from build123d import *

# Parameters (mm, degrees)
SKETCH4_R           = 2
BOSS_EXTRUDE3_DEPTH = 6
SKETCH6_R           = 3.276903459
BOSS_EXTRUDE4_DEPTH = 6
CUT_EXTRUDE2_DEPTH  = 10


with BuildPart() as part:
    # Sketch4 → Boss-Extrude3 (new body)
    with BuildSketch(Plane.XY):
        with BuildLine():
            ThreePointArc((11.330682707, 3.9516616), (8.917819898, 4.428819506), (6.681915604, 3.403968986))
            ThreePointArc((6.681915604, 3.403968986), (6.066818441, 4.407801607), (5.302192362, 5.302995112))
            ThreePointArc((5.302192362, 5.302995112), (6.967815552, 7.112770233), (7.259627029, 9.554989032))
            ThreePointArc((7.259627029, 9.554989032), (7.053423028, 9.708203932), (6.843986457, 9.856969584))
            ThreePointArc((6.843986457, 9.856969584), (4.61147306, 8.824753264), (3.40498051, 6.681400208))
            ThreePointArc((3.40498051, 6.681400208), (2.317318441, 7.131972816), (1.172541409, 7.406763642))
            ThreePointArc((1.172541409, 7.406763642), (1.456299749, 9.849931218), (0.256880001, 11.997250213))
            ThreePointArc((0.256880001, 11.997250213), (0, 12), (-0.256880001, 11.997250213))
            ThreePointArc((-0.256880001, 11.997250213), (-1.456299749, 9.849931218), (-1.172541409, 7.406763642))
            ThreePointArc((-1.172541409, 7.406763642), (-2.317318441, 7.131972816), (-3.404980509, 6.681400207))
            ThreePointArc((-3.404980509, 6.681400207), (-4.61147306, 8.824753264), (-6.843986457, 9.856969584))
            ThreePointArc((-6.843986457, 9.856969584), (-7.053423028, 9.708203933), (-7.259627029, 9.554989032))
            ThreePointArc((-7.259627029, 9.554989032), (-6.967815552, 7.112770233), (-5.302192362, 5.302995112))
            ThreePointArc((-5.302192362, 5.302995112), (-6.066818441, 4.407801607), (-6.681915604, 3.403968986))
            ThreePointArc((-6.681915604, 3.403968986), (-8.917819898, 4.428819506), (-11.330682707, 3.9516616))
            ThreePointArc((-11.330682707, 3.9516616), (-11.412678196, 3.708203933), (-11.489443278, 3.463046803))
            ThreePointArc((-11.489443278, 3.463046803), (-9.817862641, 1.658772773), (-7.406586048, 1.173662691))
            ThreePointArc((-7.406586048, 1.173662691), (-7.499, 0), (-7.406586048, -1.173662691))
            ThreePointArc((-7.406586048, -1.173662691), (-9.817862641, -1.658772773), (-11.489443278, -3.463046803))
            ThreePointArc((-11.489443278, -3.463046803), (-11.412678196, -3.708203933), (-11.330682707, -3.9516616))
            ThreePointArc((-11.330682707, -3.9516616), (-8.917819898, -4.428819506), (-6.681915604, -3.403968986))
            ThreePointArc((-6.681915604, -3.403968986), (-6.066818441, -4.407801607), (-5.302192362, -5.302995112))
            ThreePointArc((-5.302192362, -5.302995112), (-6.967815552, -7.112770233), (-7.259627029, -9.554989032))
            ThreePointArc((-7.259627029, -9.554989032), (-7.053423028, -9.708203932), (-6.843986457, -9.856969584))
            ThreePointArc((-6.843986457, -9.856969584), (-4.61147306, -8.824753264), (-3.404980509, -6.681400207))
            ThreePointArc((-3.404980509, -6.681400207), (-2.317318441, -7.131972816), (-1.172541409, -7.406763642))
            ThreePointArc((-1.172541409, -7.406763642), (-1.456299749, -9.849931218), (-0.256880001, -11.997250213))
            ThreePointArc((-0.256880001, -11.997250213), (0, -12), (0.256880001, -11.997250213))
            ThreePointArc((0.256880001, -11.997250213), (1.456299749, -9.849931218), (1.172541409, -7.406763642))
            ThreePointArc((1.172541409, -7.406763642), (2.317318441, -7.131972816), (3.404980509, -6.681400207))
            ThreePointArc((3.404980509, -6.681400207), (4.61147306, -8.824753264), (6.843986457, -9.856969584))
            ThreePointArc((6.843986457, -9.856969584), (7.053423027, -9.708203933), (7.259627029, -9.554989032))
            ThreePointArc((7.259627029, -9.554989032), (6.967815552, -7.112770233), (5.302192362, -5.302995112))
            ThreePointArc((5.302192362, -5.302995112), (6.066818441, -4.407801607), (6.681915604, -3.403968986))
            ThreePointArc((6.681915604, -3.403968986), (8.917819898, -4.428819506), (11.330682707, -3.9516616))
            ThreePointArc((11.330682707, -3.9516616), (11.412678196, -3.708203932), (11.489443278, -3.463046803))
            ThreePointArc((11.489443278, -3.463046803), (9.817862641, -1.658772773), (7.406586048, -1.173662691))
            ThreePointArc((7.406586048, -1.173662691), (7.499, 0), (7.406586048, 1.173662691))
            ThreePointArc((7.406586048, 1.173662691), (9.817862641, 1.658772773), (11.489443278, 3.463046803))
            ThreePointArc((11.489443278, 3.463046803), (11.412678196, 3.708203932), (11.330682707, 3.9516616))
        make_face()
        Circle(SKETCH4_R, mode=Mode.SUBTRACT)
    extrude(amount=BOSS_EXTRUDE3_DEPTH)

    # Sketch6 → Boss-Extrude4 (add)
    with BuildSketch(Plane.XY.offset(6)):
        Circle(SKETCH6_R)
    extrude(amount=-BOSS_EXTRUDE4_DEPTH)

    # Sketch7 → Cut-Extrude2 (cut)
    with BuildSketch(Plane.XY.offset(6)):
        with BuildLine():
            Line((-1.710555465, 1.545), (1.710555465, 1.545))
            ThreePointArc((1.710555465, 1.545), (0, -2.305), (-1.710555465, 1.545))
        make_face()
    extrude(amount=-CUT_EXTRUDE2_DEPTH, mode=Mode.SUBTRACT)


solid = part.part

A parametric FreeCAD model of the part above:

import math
import FreeCAD as App
import Part
import Sketcher
from FreeCAD import Vector

doc = App.newDocument("Part")
body = doc.addObject("PartDesign::Body", "Body")

# Sketch on XY plane
sketch1 = doc.addObject("Sketcher::SketchObject", "Sketch")
body.addObject(sketch1)
sketch1.AttachmentSupport = (doc.XY_Plane, [""])
sketch1.MapMode = "FlatFace"
sketch1.addGeometry(Part.ArcOfCircle(Part.Circle(Vector(9.4, 0.5, 0), Vector(0, 0, 1), 4), math.radians(61), math.radians(133)), False)
sketch1.addGeometry(Part.ArcOfCircle(Part.Circle(Vector(0, 0, 0), Vector(0, 0, 1), 7.5), math.radians(27), math.radians(45)), False)
sketch1.addGeometry(Part.ArcOfCircle(Part.Circle(Vector(3.3, 8.8, 0), Vector(0, 0, 1), 4), math.radians(-61), math.radians(11)), False)
sketch1.addGeometry(Part.ArcOfCircle(Part.Circle(Vector(0, 0, 0), Vector(0, 0, 1), 12), math.radians(52.77), math.radians(55.23)), False)
sketch1.addGeometry(Part.ArcOfCircle(Part.Circle(Vector(7.3, 5.9, 0), Vector(0, 0, 1), 4), math.radians(97), math.radians(169)), False)
sketch1.addGeometry(Part.ArcOfCircle(Part.Circle(Vector(0, 0, 0), Vector(0, 0, 1), 7.5), math.radians(63), math.radians(81)), False)
sketch1.addGeometry(Part.ArcOfCircle(Part.Circle(Vector(-2.5, 9.1, 0), Vector(0, 0, 1), 4), math.radians(-25), math.radians(47)), False)
sketch1.addGeometry(Part.ArcOfCircle(Part.Circle(Vector(0, 0, 0), Vector(0, 0, 1), 12), math.radians(88.77), math.radians(91.23)), False)
sketch1.addGeometry(Part.ArcOfCircle(Part.Circle(Vector(2.5, 9.1, 0), Vector(0, 0, 1), 4), math.radians(133), math.radians(205)), False)
sketch1.addGeometry(Part.ArcOfCircle(Part.Circle(Vector(0, 0, 0), Vector(0, 0, 1), 7.5), math.radians(99), math.radians(117)), False)
sketch1.addGeometry(Part.ArcOfCircle(Part.Circle(Vector(-7.3, 5.9, 0), Vector(0, 0, 1), 4), math.radians(11), math.radians(83)), False)
sketch1.addGeometry(Part.ArcOfCircle(Part.Circle(Vector(0, 0, 0), Vector(0, 0, 1), 12), math.radians(124.77), math.radians(127.23)), False)
sketch1.addGeometry(Part.ArcOfCircle(Part.Circle(Vector(-3.3, 8.8, 0), Vector(0, 0, 1), 4), math.radians(169), math.radians(241)), False)
sketch1.addGeometry(Part.ArcOfCircle(Part.Circle(Vector(0, 0, 0), Vector(0, 0, 1), 7.5), math.radians(135), math.radians(153)), False)
sketch1.addGeometry(Part.ArcOfCircle(Part.Circle(Vector(-9.4, 0.5, 0), Vector(0, 0, 1), 4), math.radians(47), math.radians(119)), False)
sketch1.addGeometry(Part.ArcOfCircle(Part.Circle(Vector(0, 0, 0), Vector(0, 0, 1), 12), math.radians(160.77), math.radians(163.23)), False)
sketch1.addGeometry(Part.ArcOfCircle(Part.Circle(Vector(-7.9, 5.1, 0), Vector(0, 0, 1), 4), math.radians(-155), math.radians(-83)), False)
sketch1.addGeometry(Part.ArcOfCircle(Part.Circle(Vector(0, 0, 0), Vector(0, 0, 1), 7.5), math.radians(171), math.radians(189)), False)
sketch1.addGeometry(Part.ArcOfCircle(Part.Circle(Vector(-7.9, -5.1, 0), Vector(0, 0, 1), 4), math.radians(83), math.radians(155)), False)
sketch1.addGeometry(Part.ArcOfCircle(Part.Circle(Vector(0, 0, 0), Vector(0, 0, 1), 12), math.radians(-163.23), math.radians(-160.77)), False)
sketch1.addGeometry(Part.ArcOfCircle(Part.Circle(Vector(-9.4, -0.5, 0), Vector(0, 0, 1), 4), math.radians(-119), math.radians(-47)), False)
sketch1.addGeometry(Part.ArcOfCircle(Part.Circle(Vector(0, 0, 0), Vector(0, 0, 1), 7.5), math.radians(-153), math.radians(-135)), False)
sketch1.addGeometry(Part.ArcOfCircle(Part.Circle(Vector(-3.3, -8.8, 0), Vector(0, 0, 1), 4), math.radians(119), math.radians(191)), False)
sketch1.addGeometry(Part.ArcOfCircle(Part.Circle(Vector(0, 0, 0), Vector(0, 0, 1), 12), math.radians(-127.23), math.radians(-124.77)), False)
sketch1.addGeometry(Part.ArcOfCircle(Part.Circle(Vector(-7.3, -5.9, 0), Vector(0, 0, 1), 4), math.radians(-83), math.radians(-11)), False)
sketch1.addGeometry(Part.ArcOfCircle(Part.Circle(Vector(0, 0, 0), Vector(0, 0, 1), 7.5), math.radians(-117), math.radians(-99)), False)
sketch1.addGeometry(Part.ArcOfCircle(Part.Circle(Vector(2.5, -9.1, 0), Vector(0, 0, 1), 4), math.radians(155), math.radians(227)), False)
sketch1.addGeometry(Part.ArcOfCircle(Part.Circle(Vector(0, 0, 0), Vector(0, 0, 1), 12), math.radians(-91.23), math.radians(-88.77)), False)
sketch1.addGeometry(Part.ArcOfCircle(Part.Circle(Vector(-2.5, -9.1, 0), Vector(0, 0, 1), 4), math.radians(-47), math.radians(25)), False)
sketch1.addGeometry(Part.ArcOfCircle(Part.Circle(Vector(0, 0, 0), Vector(0, 0, 1), 7.5), math.radians(-81), math.radians(-63)), False)
sketch1.addGeometry(Part.ArcOfCircle(Part.Circle(Vector(7.3, -5.9, 0), Vector(0, 0, 1), 4), math.radians(-169), math.radians(-97)), False)
sketch1.addGeometry(Part.ArcOfCircle(Part.Circle(Vector(0, 0, 0), Vector(0, 0, 1), 12), math.radians(-55.23), math.radians(-52.77)), False)
sketch1.addGeometry(Part.ArcOfCircle(Part.Circle(Vector(3.3, -8.8, 0), Vector(0, 0, 1), 4), math.radians(-11), math.radians(61)), False)
sketch1.addGeometry(Part.ArcOfCircle(Part.Circle(Vector(0, 0, 0), Vector(0, 0, 1), 7.5), math.radians(-45), math.radians(-27)), False)
sketch1.addGeometry(Part.ArcOfCircle(Part.Circle(Vector(9.4, -0.5, 0), Vector(0, 0, 1), 4), math.radians(-133), math.radians(-61)), False)
sketch1.addGeometry(Part.ArcOfCircle(Part.Circle(Vector(0, 0, 0), Vector(0, 0, 1), 12), math.radians(-19.23), math.radians(-16.77)), False)
sketch1.addGeometry(Part.ArcOfCircle(Part.Circle(Vector(7.9, -5.1, 0), Vector(0, 0, 1), 4), math.radians(25), math.radians(97)), False)
sketch1.addGeometry(Part.ArcOfCircle(Part.Circle(Vector(0, 0, 0), Vector(0, 0, 1), 7.5), math.radians(-9), math.radians(9)), False)
sketch1.addGeometry(Part.ArcOfCircle(Part.Circle(Vector(7.9, 5.1, 0), Vector(0, 0, 1), 4), math.radians(-97), math.radians(-25)), False)
sketch1.addGeometry(Part.ArcOfCircle(Part.Circle(Vector(0, 0, 0), Vector(0, 0, 1), 12), math.radians(16.77), math.radians(19.23)), False)
sketch1.addGeometry(Part.Circle(Vector(0, 0, 0), Vector(0, 0, 1), 2), False)
sketch1.addConstraint(Sketcher.Constraint("Coincident", 0, 2, 1, 1))
sketch1.addConstraint(Sketcher.Constraint("Coincident", 1, 2, 2, 1))
sketch1.addConstraint(Sketcher.Constraint("Coincident", 2, 2, 3, 1))
sketch1.addConstraint(Sketcher.Constraint("Coincident", 3, 2, 4, 1))
sketch1.addConstraint(Sketcher.Constraint("Coincident", 4, 2, 5, 1))
sketch1.addConstraint(Sketcher.Constraint("Coincident", 5, 2, 6, 1))
sketch1.addConstraint(Sketcher.Constraint("Coincident", 6, 2, 7, 1))
sketch1.addConstraint(Sketcher.Constraint("Coincident", 7, 2, 8, 1))
sketch1.addConstraint(Sketcher.Constraint("Coincident", 8, 2, 9, 1))
sketch1.addConstraint(Sketcher.Constraint("Coincident", 9, 2, 10, 1))
sketch1.addConstraint(Sketcher.Constraint("Coincident", 10, 2, 11, 1))
sketch1.addConstraint(Sketcher.Constraint("Coincident", 11, 2, 12, 1))
sketch1.addConstraint(Sketcher.Constraint("Coincident", 12, 2, 13, 1))
sketch1.addConstraint(Sketcher.Constraint("Coincident", 13, 2, 14, 1))
sketch1.addConstraint(Sketcher.Constraint("Coincident", 14, 2, 15, 1))
sketch1.addConstraint(Sketcher.Constraint("Coincident", 15, 2, 16, 1))
sketch1.addConstraint(Sketcher.Constraint("Coincident", 16, 2, 17, 1))
sketch1.addConstraint(Sketcher.Constraint("Coincident", 17, 2, 18, 1))
sketch1.addConstraint(Sketcher.Constraint("Coincident", 18, 2, 19, 1))
sketch1.addConstraint(Sketcher.Constraint("Coincident", 19, 2, 20, 1))
sketch1.addConstraint(Sketcher.Constraint("Coincident", 20, 2, 21, 1))
sketch1.addConstraint(Sketcher.Constraint("Coincident", 21, 2, 22, 1))
sketch1.addConstraint(Sketcher.Constraint("Coincident", 22, 2, 23, 1))
sketch1.addConstraint(Sketcher.Constraint("Coincident", 23, 2, 24, 1))
sketch1.addConstraint(Sketcher.Constraint("Coincident", 24, 2, 25, 1))
sketch1.addConstraint(Sketcher.Constraint("Coincident", 25, 2, 26, 1))
sketch1.addConstraint(Sketcher.Constraint("Coincident", 26, 2, 27, 1))
sketch1.addConstraint(Sketcher.Constraint("Coincident", 27, 2, 28, 1))
sketch1.addConstraint(Sketcher.Constraint("Coincident", 28, 2, 29, 1))
sketch1.addConstraint(Sketcher.Constraint("Coincident", 29, 2, 30, 1))
sketch1.addConstraint(Sketcher.Constraint("Coincident", 30, 2, 31, 1))
sketch1.addConstraint(Sketcher.Constraint("Coincident", 31, 2, 32, 1))
sketch1.addConstraint(Sketcher.Constraint("Coincident", 32, 2, 33, 1))
sketch1.addConstraint(Sketcher.Constraint("Coincident", 33, 2, 34, 1))
sketch1.addConstraint(Sketcher.Constraint("Coincident", 34, 2, 35, 1))
sketch1.addConstraint(Sketcher.Constraint("Coincident", 35, 2, 36, 1))
sketch1.addConstraint(Sketcher.Constraint("Coincident", 36, 2, 37, 1))
sketch1.addConstraint(Sketcher.Constraint("Coincident", 37, 2, 38, 1))
sketch1.addConstraint(Sketcher.Constraint("Coincident", 38, 2, 39, 1))
sketch1.addConstraint(Sketcher.Constraint("Coincident", 39, 2, 0, 1))
sketch1.addConstraint(Sketcher.Constraint("Coincident", 1, 3, -1, 1))
sketch1.addConstraint(Sketcher.Constraint("Coincident", 3, 3, -1, 1))
sketch1.addConstraint(Sketcher.Constraint("Coincident", 5, 3, -1, 1))
sketch1.addConstraint(Sketcher.Constraint("Coincident", 7, 3, -1, 1))
sketch1.addConstraint(Sketcher.Constraint("Coincident", 9, 3, -1, 1))
sketch1.addConstraint(Sketcher.Constraint("Coincident", 11, 3, -1, 1))
sketch1.addConstraint(Sketcher.Constraint("Coincident", 13, 3, -1, 1))
sketch1.addConstraint(Sketcher.Constraint("Coincident", 15, 3, -1, 1))
sketch1.addConstraint(Sketcher.Constraint("Coincident", 17, 3, -1, 1))
sketch1.addConstraint(Sketcher.Constraint("Coincident", 19, 3, -1, 1))
sketch1.addConstraint(Sketcher.Constraint("Coincident", 21, 3, -1, 1))
sketch1.addConstraint(Sketcher.Constraint("Coincident", 23, 3, -1, 1))
sketch1.addConstraint(Sketcher.Constraint("Coincident", 25, 3, -1, 1))
sketch1.addConstraint(Sketcher.Constraint("Coincident", 27, 3, -1, 1))
sketch1.addConstraint(Sketcher.Constraint("Coincident", 29, 3, -1, 1))
sketch1.addConstraint(Sketcher.Constraint("Coincident", 31, 3, -1, 1))
sketch1.addConstraint(Sketcher.Constraint("Coincident", 33, 3, -1, 1))
sketch1.addConstraint(Sketcher.Constraint("Coincident", 35, 3, -1, 1))
sketch1.addConstraint(Sketcher.Constraint("Coincident", 37, 3, -1, 1))
sketch1.addConstraint(Sketcher.Constraint("Coincident", 39, 3, -1, 1))
sketch1.addConstraint(Sketcher.Constraint("Coincident", 40, 3, -1, 1))
sketch1.addConstraint(Sketcher.Constraint("Equal", 0, 2))
sketch1.addConstraint(Sketcher.Constraint("Equal", 2, 4))
sketch1.addConstraint(Sketcher.Constraint("Equal", 1, 5))
sketch1.addConstraint(Sketcher.Constraint("Equal", 4, 6))
sketch1.addConstraint(Sketcher.Constraint("Equal", 3, 7))
sketch1.addConstraint(Sketcher.Constraint("Equal", 6, 8))
sketch1.addConstraint(Sketcher.Constraint("Equal", 5, 9))
sketch1.addConstraint(Sketcher.Constraint("Equal", 8, 10))
sketch1.addConstraint(Sketcher.Constraint("Equal", 10, 12))
sketch1.addConstraint(Sketcher.Constraint("Equal", 9, 13))
sketch1.addConstraint(Sketcher.Constraint("Equal", 12, 14))
sketch1.addConstraint(Sketcher.Constraint("Equal", 11, 15))
sketch1.addConstraint(Sketcher.Constraint("Equal", 14, 16))
sketch1.addConstraint(Sketcher.Constraint("Equal", 13, 17))
sketch1.addConstraint(Sketcher.Constraint("Equal", 16, 18))
sketch1.addConstraint(Sketcher.Constraint("Equal", 15, 19))
sketch1.addConstraint(Sketcher.Constraint("Equal", 18, 20))
sketch1.addConstraint(Sketcher.Constraint("Equal", 17, 21))
sketch1.addConstraint(Sketcher.Constraint("Equal", 20, 22))
sketch1.addConstraint(Sketcher.Constraint("Equal", 7, 23))
sketch1.addConstraint(Sketcher.Constraint("Equal", 22, 24))
sketch1.addConstraint(Sketcher.Constraint("Equal", 21, 25))
sketch1.addConstraint(Sketcher.Constraint("Equal", 24, 26))
sketch1.addConstraint(Sketcher.Constraint("Equal", 23, 27))
sketch1.addConstraint(Sketcher.Constraint("Equal", 26, 28))
sketch1.addConstraint(Sketcher.Constraint("Equal", 25, 29))
sketch1.addConstraint(Sketcher.Constraint("Equal", 28, 30))
sketch1.addConstraint(Sketcher.Constraint("Equal", 27, 31))
sketch1.addConstraint(Sketcher.Constraint("Equal", 30, 32))
sketch1.addConstraint(Sketcher.Constraint("Equal", 29, 33))
sketch1.addConstraint(Sketcher.Constraint("Equal", 32, 34))
sketch1.addConstraint(Sketcher.Constraint("Equal", 31, 35))
sketch1.addConstraint(Sketcher.Constraint("Equal", 34, 36))
sketch1.addConstraint(Sketcher.Constraint("Equal", 33, 37))
sketch1.addConstraint(Sketcher.Constraint("Equal", 36, 38))
sketch1.addConstraint(Sketcher.Constraint("Equal", 35, 39))
sketch1.addConstraint(Sketcher.Constraint("Symmetric", 0, 3, 20, 3, -1, 1))
sketch1.addConstraint(Sketcher.Constraint("Symmetric", 2, 3, 22, 3, -1, 1))
sketch1.addConstraint(Sketcher.Constraint("Symmetric", 4, 3, 24, 3, -1, 1))
sketch1.addConstraint(Sketcher.Constraint("Symmetric", 6, 3, 26, 3, -1, 1))
sketch1.addConstraint(Sketcher.Constraint("Symmetric", 8, 3, 28, 3, -1, 1))
sketch1.addConstraint(Sketcher.Constraint("Symmetric", 10, 3, 30, 3, -1, 1))
sketch1.addConstraint(Sketcher.Constraint("Symmetric", 12, 3, 32, 3, -1, 1))
sketch1.addConstraint(Sketcher.Constraint("Symmetric", 14, 3, 34, 3, -1, 1))
sketch1.addConstraint(Sketcher.Constraint("Symmetric", 16, 3, 36, 3, -1, 1))
sketch1.addConstraint(Sketcher.Constraint("Symmetric", 18, 3, 38, 3, -1, 1))
sketch1.addConstraint(Sketcher.Constraint("Symmetric", 6, 3, 8, 3, -2))
sketch1.addConstraint(Sketcher.Constraint("Symmetric", 4, 3, 10, 3, -2))
sketch1.addConstraint(Sketcher.Constraint("Symmetric", 2, 3, 12, 3, -2))
sketch1.addConstraint(Sketcher.Constraint("Symmetric", 0, 3, 14, 3, -2))
sketch1.addConstraint(Sketcher.Constraint("Symmetric", 18, 3, 36, 3, -2))
sketch1.addConstraint(Sketcher.Constraint("Horizontal", 3, 2, 10, 2))
sketch1.addConstraint(Sketcher.Constraint("Diameter", 40, 4.0))
sketch1.addConstraint(Sketcher.Constraint("Radius", 0, 4.0))
sketch1.addConstraint(Sketcher.Constraint("Radius", 3, 12.000001))
sketch1.addConstraint(Sketcher.Constraint("Radius", 1, 7.499))
sketch1.addConstraint(Sketcher.Constraint("DistanceY", -1, 1, 4, 2, 6.6814))
sketch1.addConstraint(Sketcher.Constraint("DistanceX", -1, 1, 0, 3, 9.385841))
sketch1.addConstraint(Sketcher.Constraint("DistanceY", -1, 1, 4, 3, 5.886009))
sketch1.addConstraint(Sketcher.Constraint("DistanceY", -1, 1, 6, 3, 9.067468))
sketch1.addConstraint(Sketcher.Constraint("DistanceX", 16, 3, -1, 1, 7.861508))
sketch1.addConstraint(Sketcher.Constraint("DistanceY", -1, 1, 16, 3, 5.147709))
sketch1.addConstraint(Sketcher.Constraint("DistanceY", -1, 1, 0, 2, 3.403969))
sketch1.addConstraint(Sketcher.Constraint("DistanceY", -1, 1, 2, 2, 9.554989))
sketch1.addConstraint(Sketcher.Constraint("DistanceX", -1, 1, 5, 2, 1.172541))
sketch1.addConstraint(Sketcher.Constraint("DistanceX", -1, 1, 2, 3, 3.334346))
pad1 = doc.addObject("PartDesign::Pad", "Pad")
body.addObject(pad1)
pad1.Profile = sketch1
pad1.Length = 6

# Sketch on XY plane
sketch2 = doc.addObject("Sketcher::SketchObject", "Sketch001")
body.addObject(sketch2)
sketch2.AttachmentSupport = (doc.XY_Plane, [""])
sketch2.MapMode = "FlatFace"
sketch2.AttachmentOffset = App.Placement(Vector(0, 0, 6), App.Rotation())
sketch2.addGeometry(Part.Circle(Vector(0, 0, 0), Vector(0, 0, 1), 3.3), False)
sketch2.addConstraint(Sketcher.Constraint("Coincident", 0, 3, -1, 1))
sketch2.addConstraint(Sketcher.Constraint("Diameter", 0, 6.553807))
pad2 = doc.addObject("PartDesign::Pad", "Pad001")
body.addObject(pad2)
pad2.Profile = sketch2
pad2.Length = 6
pad2.Reversed = True

# Sketch on XY plane
sketch3 = doc.addObject("Sketcher::SketchObject", "Sketch002")
body.addObject(sketch3)
sketch3.AttachmentSupport = (doc.XY_Plane, [""])
sketch3.MapMode = "FlatFace"
sketch3.AttachmentOffset = App.Placement(Vector(0, 0, 6), App.Rotation())
sketch3.addGeometry(Part.LineSegment(Vector(1.7, 1.5, 0), Vector(-1.7, 1.5, 0)), False)
sketch3.addGeometry(Part.ArcOfCircle(Part.Circle(Vector(0, 0, 0), Vector(0, 0, 1), 2.3), math.radians(138), math.radians(402)), False)
sketch3.addConstraint(Sketcher.Constraint("Coincident", 0, 1, 1, 2))
sketch3.addConstraint(Sketcher.Constraint("Coincident", 1, 1, 0, 2))
sketch3.addConstraint(Sketcher.Constraint("Horizontal", 0))
sketch3.addConstraint(Sketcher.Constraint("Coincident", 1, 3, -1, 1))
sketch3.addConstraint(Sketcher.Constraint("Radius", 1, 2.305))
sketch3.addConstraint(Sketcher.Constraint("DistanceY", -1, 1, 0, 1, 1.545))
pocket1 = doc.addObject("PartDesign::Pocket", "Pocket")
body.addObject(pocket1)
pocket1.Profile = sketch3
pocket1.Length = 10

doc.recompute()
